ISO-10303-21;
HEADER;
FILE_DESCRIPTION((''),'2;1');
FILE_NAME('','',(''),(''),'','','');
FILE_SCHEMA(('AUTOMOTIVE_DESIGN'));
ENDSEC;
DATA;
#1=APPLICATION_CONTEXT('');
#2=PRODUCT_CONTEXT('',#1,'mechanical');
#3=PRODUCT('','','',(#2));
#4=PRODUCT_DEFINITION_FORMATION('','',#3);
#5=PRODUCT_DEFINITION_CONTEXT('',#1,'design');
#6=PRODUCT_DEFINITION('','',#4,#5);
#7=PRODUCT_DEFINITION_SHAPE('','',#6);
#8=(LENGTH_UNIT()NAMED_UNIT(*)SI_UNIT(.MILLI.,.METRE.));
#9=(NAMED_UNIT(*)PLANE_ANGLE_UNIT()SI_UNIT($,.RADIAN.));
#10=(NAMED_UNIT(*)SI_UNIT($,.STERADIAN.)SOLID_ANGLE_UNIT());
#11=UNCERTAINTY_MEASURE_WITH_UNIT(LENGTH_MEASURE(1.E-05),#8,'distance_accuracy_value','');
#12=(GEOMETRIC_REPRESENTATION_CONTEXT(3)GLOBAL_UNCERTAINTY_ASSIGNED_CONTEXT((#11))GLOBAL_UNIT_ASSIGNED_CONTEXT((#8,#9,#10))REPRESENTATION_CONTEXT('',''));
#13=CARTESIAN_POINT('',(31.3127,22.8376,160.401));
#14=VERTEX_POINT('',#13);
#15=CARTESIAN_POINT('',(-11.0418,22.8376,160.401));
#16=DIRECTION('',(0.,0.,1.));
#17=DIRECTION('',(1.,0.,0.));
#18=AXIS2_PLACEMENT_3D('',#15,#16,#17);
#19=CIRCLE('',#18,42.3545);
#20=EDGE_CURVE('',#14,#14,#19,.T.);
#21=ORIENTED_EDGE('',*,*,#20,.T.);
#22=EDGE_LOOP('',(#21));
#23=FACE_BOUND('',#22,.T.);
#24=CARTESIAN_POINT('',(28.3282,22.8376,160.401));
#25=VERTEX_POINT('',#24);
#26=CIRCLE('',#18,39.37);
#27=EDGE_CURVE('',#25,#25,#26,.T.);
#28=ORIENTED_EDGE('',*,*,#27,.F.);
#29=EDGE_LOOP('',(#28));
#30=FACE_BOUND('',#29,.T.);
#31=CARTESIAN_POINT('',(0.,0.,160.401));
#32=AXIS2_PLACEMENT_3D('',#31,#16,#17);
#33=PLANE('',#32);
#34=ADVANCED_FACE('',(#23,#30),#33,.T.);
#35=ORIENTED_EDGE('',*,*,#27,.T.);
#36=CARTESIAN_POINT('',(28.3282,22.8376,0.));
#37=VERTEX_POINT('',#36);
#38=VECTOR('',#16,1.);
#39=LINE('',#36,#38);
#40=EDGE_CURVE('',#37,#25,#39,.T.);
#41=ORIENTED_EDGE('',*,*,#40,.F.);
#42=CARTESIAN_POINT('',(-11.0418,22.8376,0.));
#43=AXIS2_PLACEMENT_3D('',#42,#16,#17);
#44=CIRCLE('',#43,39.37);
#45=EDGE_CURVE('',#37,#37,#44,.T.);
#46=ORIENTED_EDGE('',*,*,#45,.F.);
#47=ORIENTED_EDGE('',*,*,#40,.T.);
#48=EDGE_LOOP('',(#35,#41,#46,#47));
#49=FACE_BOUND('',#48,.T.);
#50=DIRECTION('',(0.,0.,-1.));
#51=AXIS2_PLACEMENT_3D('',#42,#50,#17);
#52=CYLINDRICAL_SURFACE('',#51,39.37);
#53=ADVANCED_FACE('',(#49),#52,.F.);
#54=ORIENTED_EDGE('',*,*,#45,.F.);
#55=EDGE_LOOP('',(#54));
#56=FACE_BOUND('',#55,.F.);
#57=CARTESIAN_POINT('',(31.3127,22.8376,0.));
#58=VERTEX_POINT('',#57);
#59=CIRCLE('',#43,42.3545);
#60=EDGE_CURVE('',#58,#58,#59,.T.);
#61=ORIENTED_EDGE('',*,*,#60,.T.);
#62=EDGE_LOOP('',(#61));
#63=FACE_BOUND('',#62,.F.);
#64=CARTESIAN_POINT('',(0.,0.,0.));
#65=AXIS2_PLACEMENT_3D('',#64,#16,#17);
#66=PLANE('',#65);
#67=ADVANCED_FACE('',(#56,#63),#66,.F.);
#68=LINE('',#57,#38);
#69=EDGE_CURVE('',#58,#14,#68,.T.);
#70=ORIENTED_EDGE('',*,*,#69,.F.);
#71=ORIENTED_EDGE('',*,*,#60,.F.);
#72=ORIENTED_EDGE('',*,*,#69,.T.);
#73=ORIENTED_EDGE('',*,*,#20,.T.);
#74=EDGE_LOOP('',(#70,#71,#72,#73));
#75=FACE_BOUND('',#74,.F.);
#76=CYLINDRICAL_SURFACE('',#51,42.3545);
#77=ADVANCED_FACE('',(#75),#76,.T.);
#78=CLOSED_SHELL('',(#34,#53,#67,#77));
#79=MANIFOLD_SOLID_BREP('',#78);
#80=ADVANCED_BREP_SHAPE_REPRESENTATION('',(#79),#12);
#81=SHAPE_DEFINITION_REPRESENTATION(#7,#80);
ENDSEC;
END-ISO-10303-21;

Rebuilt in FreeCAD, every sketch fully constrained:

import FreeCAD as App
import Part
import Sketcher
from FreeCAD import Vector
Q = App.Units.Quantity

doc = App.newDocument("Part")
body = doc.addObject("PartDesign::Body", "Body")

sketch1 = doc.addObject("Sketcher::SketchObject", "Sketch")
body.addObject(sketch1)
sketch1.AttachmentSupport = (doc.XY_Plane, [""])
sketch1.MapMode = "FlatFace"
sketch1.addGeometry(Part.Circle(Vector(-11, 23, 0), Vector(0, 0, 1), 42), False)
sketch1.addGeometry(Part.Circle(Vector(-11, 23, 0), Vector(0, 0, 1), 39), False)
sketch1.addConstraint(Sketcher.Constraint("Coincident", 1, 3, 0, 3))
sketch1.addConstraint(Sketcher.Constraint("Diameter", 1, Q("3.1 in")))
sketch1.addConstraint(Sketcher.Constraint("Diameter", 0, Q("3.335 in")))
sketch1.addConstraint(Sketcher.Constraint("DistanceX", 0, 3, -1, 1, Q("11.0418 mm")))
sketch1.addConstraint(Sketcher.Constraint("DistanceY", -1, 1, 0, 3, Q("22.8376 mm")))
pad1 = doc.addObject("PartDesign::Pad", "Pad")
body.addObject(pad1)
pad1.Profile = sketch1
pad1.Length = Q("6.315 in")

doc.recompute()
